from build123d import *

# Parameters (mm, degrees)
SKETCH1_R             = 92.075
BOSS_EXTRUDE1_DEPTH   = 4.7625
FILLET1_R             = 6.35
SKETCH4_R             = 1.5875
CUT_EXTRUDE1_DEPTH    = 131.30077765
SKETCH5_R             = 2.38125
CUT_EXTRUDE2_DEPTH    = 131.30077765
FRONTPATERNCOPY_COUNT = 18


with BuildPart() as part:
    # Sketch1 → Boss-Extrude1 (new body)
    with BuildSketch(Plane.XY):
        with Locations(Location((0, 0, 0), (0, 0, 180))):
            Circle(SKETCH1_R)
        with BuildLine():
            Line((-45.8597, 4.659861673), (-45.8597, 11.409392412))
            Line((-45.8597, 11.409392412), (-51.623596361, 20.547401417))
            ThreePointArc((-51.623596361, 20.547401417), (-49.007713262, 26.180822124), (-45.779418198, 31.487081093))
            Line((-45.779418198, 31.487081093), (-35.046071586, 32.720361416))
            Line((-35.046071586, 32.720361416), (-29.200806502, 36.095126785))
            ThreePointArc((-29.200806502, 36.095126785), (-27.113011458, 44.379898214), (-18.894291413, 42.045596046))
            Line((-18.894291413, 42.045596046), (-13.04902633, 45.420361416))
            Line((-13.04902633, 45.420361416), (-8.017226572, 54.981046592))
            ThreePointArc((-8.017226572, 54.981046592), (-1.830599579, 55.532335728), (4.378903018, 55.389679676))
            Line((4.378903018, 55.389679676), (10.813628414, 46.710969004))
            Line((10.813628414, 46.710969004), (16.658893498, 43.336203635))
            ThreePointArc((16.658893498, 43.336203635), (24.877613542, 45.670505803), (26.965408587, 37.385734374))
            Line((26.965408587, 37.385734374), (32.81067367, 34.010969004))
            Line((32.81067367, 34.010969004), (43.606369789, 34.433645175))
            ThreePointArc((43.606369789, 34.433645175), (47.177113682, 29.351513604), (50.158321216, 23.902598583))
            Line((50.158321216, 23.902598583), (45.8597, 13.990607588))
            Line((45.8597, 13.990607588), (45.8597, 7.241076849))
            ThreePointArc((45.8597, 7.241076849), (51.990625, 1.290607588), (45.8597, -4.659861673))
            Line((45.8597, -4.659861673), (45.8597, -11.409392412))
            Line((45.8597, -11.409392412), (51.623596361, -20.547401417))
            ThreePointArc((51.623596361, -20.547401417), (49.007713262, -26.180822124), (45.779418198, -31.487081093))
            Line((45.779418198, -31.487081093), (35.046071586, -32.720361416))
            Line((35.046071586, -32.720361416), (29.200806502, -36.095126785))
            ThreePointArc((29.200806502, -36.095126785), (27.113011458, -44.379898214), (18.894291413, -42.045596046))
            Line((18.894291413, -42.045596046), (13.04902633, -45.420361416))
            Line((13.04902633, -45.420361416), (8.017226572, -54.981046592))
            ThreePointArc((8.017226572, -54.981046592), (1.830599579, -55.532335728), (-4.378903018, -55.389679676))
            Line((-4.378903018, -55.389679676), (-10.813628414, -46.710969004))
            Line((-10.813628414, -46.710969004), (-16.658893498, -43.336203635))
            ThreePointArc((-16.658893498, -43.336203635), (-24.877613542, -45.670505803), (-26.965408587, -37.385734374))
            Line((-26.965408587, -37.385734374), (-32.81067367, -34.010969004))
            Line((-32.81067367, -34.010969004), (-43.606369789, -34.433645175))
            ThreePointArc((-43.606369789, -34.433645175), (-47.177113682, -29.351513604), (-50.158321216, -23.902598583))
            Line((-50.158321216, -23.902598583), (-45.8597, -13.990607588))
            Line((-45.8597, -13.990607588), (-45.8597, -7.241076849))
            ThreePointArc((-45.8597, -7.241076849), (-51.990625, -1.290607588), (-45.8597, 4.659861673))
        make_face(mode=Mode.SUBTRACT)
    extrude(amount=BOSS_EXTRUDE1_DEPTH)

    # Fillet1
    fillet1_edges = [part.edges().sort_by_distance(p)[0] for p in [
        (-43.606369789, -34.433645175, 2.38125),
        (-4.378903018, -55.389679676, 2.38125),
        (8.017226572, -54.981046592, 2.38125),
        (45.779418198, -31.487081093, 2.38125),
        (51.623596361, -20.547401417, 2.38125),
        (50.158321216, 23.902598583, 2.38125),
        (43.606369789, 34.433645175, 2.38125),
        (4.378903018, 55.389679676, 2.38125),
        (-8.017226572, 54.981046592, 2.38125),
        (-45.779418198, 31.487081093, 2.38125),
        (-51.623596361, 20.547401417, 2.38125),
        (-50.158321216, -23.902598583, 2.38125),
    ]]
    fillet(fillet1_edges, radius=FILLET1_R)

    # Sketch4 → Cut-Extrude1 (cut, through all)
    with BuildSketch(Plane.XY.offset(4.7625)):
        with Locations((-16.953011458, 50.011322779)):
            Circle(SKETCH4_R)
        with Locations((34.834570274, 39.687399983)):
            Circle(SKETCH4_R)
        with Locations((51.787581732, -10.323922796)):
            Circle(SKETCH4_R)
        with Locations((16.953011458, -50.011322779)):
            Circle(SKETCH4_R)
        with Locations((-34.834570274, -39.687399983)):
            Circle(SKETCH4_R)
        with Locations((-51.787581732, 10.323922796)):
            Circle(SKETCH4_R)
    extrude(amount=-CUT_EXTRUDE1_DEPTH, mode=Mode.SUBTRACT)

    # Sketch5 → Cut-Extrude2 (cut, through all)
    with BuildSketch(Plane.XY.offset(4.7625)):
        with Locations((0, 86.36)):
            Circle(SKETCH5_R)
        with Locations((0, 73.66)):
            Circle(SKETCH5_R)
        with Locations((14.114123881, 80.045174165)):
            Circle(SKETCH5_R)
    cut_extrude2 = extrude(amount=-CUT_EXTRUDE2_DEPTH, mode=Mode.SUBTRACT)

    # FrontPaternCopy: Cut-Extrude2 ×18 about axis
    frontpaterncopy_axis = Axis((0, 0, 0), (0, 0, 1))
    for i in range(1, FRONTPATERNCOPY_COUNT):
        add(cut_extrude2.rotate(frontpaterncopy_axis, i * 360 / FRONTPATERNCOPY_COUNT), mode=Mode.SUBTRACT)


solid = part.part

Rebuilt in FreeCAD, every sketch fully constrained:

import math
import FreeCAD as App
import Part
import Sketcher
Q = App.Units.Quantity


def edges_at(feature, points):
    """Names of the edges that pass closest to the given points."""
    edges = feature.Shape.Edges
    near = lambda p: min(range(len(edges)), key=lambda i: edges[i].distToShape(Part.Vertex(*p))[0])
    return sorted({f"Edge{near(p) + 1}" for p in points})

doc = App.newDocument("Part")
body = doc.addObject("PartDesign::Body", "Body")

sketch1 = body.newObject("Sketcher::SketchObject", "Sketch")
sketch1.AttachmentSupport = (doc.getObject("XY_Plane"), [""])
sketch1.MapMode = "FlatFace"
sketch1.addGeometry([
    Part.Circle(App.Vector(0, 0, 0), App.Vector(0, 0, 1), 92),
    Part.ArcOfCircle(Part.Circle(App.Vector(-46, -1, 0), App.Vector(0, 0, 1), 6), math.radians(88), math.radians(272)),
    Part.LineSegment(App.Vector(-46, 5, 0), App.Vector(-46, 11, 0)),
    Part.LineSegment(App.Vector(-46, 11, 0), App.Vector(-52, 21, 0)),
    Part.ArcOfCircle(Part.Circle(App.Vector(0, 0, 0), App.Vector(0, 0, 1), 56), math.radians(145.48), math.radians(158.3)),
    Part.LineSegment(App.Vector(-46, 31, 0), App.Vector(-35, 33, 0)),
    Part.LineSegment(App.Vector(-35, 33, 0), App.Vector(-29, 36, 0)),
    Part.ArcOfCircle(Part.Circle(App.Vector(-24, 39, 0), App.Vector(0, 0, 1), 6), math.radians(28), math.radians(212)),
    Part.LineSegment(App.Vector(-19, 42, 0), App.Vector(-13, 45, 0)),
    Part.LineSegment(App.Vector(-13, 45, 0), App.Vector(-8, 55, 0)),
    Part.ArcOfCircle(Part.Circle(App.Vector(0, 0, 0), App.Vector(0, 0, 1), 56), math.radians(85.48), math.radians(98.3)),
    Part.LineSegment(App.Vector(4, 55, 0), App.Vector(11, 47, 0)),
    Part.LineSegment(App.Vector(11, 47, 0), App.Vector(17, 43, 0)),
    Part.ArcOfCircle(Part.Circle(App.Vector(22, 41, 0), App.Vector(0, 0, 1), 6), math.radians(-32), math.radians(152)),
    Part.LineSegment(App.Vector(27, 37, 0), App.Vector(33, 34, 0)),
    Part.LineSegment(App.Vector(33, 34, 0), App.Vector(44, 34, 0)),
    Part.ArcOfCircle(Part.Circle(App.Vector(0, 0, 0), App.Vector(0, 0, 1), 56), math.radians(25.48), math.radians(38.3)),
    Part.LineSegment(App.Vector(50, 24, 0), App.Vector(46, 14, 0)),
    Part.LineSegment(App.Vector(46, 14, 0), App.Vector(46, 7, 0)),
    Part.ArcOfCircle(Part.Circle(App.Vector(46, 1, 0), App.Vector(0, 0, 1), 6), math.radians(-92), math.radians(92)),
    Part.LineSegment(App.Vector(46, -5, 0), App.Vector(46, -11, 0)),
    Part.LineSegment(App.Vector(46, -11, 0), App.Vector(52, -21, 0)),
    Part.ArcOfCircle(Part.Circle(App.Vector(0, 0, 0), App.Vector(0, 0, 1), 56), math.radians(-34.52), math.radians(-21.7)),
    Part.LineSegment(App.Vector(46, -31, 0), App.Vector(35, -33, 0)),
    Part.LineSegment(App.Vector(35, -33, 0), App.Vector(29, -36, 0)),
    Part.ArcOfCircle(Part.Circle(App.Vector(24, -39, 0), App.Vector(0, 0, 1), 6), math.radians(-152), math.radians(32)),
    Part.LineSegment(App.Vector(19, -42, 0), App.Vector(13, -45, 0)),
    Part.LineSegment(App.Vector(13, -45, 0), App.Vector(8, -55, 0)),
    Part.ArcOfCircle(Part.Circle(App.Vector(0, 0, 0), App.Vector(0, 0, 1), 56), math.radians(-94.52), math.radians(-81.7)),
    Part.LineSegment(App.Vector(-4, -55, 0), App.Vector(-11, -47, 0)),
    Part.LineSegment(App.Vector(-11, -47, 0), App.Vector(-17, -43, 0)),
    Part.ArcOfCircle(Part.Circle(App.Vector(-22, -41, 0), App.Vector(0, 0, 1), 6), math.radians(148), math.radians(332)),
    Part.LineSegment(App.Vector(-27, -37, 0), App.Vector(-33, -34, 0)),
    Part.LineSegment(App.Vector(-33, -34, 0), App.Vector(-44, -34, 0)),
    Part.ArcOfCircle(Part.Circle(App.Vector(0, 0, 0), App.Vector(0, 0, 1), 56), math.radians(-154.52), math.radians(-141.7)),
    Part.LineSegment(App.Vector(-50, -24, 0), App.Vector(-46, -14, 0)),
    Part.LineSegment(App.Vector(-46, -14, 0), App.Vector(-46, -7, 0)),
], False)
sketch1.addConstraint([
    Sketcher.Constraint("Coincident", 1, 1, 2, 1),
    Sketcher.Constraint("Coincident", 2, 2, 3, 1),
    Sketcher.Constraint("Coincident", 3, 2, 4, 2),
    Sketcher.Constraint("Coincident", 4, 1, 5, 1),
    Sketcher.Constraint("Coincident", 5, 2, 6, 1),
    Sketcher.Constraint("Coincident", 6, 2, 7, 2),
    Sketcher.Constraint("Coincident", 7, 1, 8, 1),
    Sketcher.Constraint("Coincident", 8, 2, 9, 1),
    Sketcher.Constraint("Coincident", 9, 2, 10, 2),
    Sketcher.Constraint("Coincident", 10, 1, 11, 1),
    Sketcher.Constraint("Coincident", 11, 2, 12, 1),
    Sketcher.Constraint("Coincident", 12, 2, 13, 2),
    Sketcher.Constraint("Coincident", 13, 1, 14, 1),
    Sketcher.Constraint("Coincident", 14, 2, 15, 1),
    Sketcher.Constraint("Coincident", 15, 2, 16, 2),
    Sketcher.Constraint("Coincident", 16, 1, 17, 1),
    Sketcher.Constraint("Coincident", 17, 2, 18, 1),
    Sketcher.Constraint("Coincident", 18, 2, 19, 2),
    Sketcher.Constraint("Coincident", 19, 1, 20, 1),
    Sketcher.Constraint("Coincident", 20, 2, 21, 1),
    Sketcher.Constraint("Coincident", 21, 2, 22, 2),
    Sketcher.Constraint("Coincident", 22, 1, 23, 1),
    Sketcher.Constraint("Coincident", 23, 2, 24, 1),
    Sketcher.Constraint("Coincident", 24, 2, 25, 2),
    Sketcher.Constraint("Coincident", 25, 1, 26, 1),
    Sketcher.Constraint("Coincident", 26, 2, 27, 1),
    Sketcher.Constraint("Coincident", 27, 2, 28, 2),
    Sketcher.Constraint("Coincident", 28, 1, 29, 1),
    Sketcher.Constraint("Coincident", 29, 2, 30, 1),
    Sketcher.Constraint("Coincident", 30, 2, 31, 2),
    Sketcher.Constraint("Coincident", 31, 1, 32, 1),
    Sketcher.Constraint("Coincident", 32, 2, 33, 1),
    Sketcher.Constraint("Coincident", 33, 2, 34, 2),
    Sketcher.Constraint("Coincident", 34, 1, 35, 1),
    Sketcher.Constraint("Coincident", 35, 2, 36, 1),
    Sketcher.Constraint("Coincident", 36, 2, 1, 2),
    Sketcher.Constraint("Vertical", 2),
    Sketcher.Constraint("Vertical", 18),
    Sketcher.Constraint("Vertical", 20),
    Sketcher.Constraint("Vertical", 36),
    Sketcher.Constraint("Coincident", 0, 3, -1, 1),
    Sketcher.Constraint("Coincident", 4, 3, -1, 1),
    Sketcher.Constraint("Coincident", 10, 3, -1, 1),
    Sketcher.Constraint("Coincident", 16, 3, -1, 1),
    Sketcher.Constraint("Coincident", 22, 3, -1, 1),
    Sketcher.Constraint("Coincident", 28, 3, -1, 1),
    Sketcher.Constraint("Coincident", 34, 3, -1, 1),
    Sketcher.Constraint("Equal", 1, 7),
    Sketcher.Constraint("Equal", 4, 10),
    Sketcher.Constraint("Equal", 7, 13),
    Sketcher.Constraint("Equal", 10, 16),
    Sketcher.Constraint("Equal", 13, 19),
    Sketcher.Constraint("Equal", 16, 22),
    Sketcher.Constraint("Equal", 19, 25),
    Sketcher.Constraint("Equal", 22, 28),
    Sketcher.Constraint("Equal", 25, 31),
    Sketcher.Constraint("Equal", 28, 34),
    Sketcher.Constraint("Symmetric", 1, 3, 19, 3, -1, 1),
    Sketcher.Constraint("Symmetric", 7, 3, 25, 3, -1, 1),
    Sketcher.Constraint("Symmetric", 13, 3, 31, 3, -1, 1),
    Sketcher.Constraint("Symmetric", 2, 2, 20, 2, -1, 1),
    Sketcher.Constraint("Symmetric", 5, 2, 23, 2, -1, 1),
    Sketcher.Constraint("Symmetric", 8, 2, 26, 2, -1, 1),
    Sketcher.Constraint("Symmetric", 11, 2, 29, 2, -1, 1),
    Sketcher.Constraint("Symmetric", 14, 2, 32, 2, -1, 1),
    Sketcher.Constraint("Symmetric", 17, 2, 35, 2, -1, 1),
    Sketcher.Constraint("Parallel", 6, 8),
    Sketcher.Constraint("Parallel", 12, 14),
    Sketcher.Constraint("Parallel", 3, 21),
    Sketcher.Constraint("Parallel", 5, 23),
    Sketcher.Constraint("Parallel", 8, 24),
    Sketcher.Constraint("Parallel", 24, 26),
    Sketcher.Constraint("Parallel", 9, 27),
    Sketcher.Constraint("Parallel", 11, 29),
    Sketcher.Constraint("Parallel", 14, 30),
    Sketcher.Constraint("Parallel", 30, 32),
    Sketcher.Constraint("Parallel", 15, 33),
    Sketcher.Constraint("Parallel", 17, 35),
    Sketcher.Constraint("Vertical", 18, 2, 19, 1),
    Sketcher.Constraint("Equal", 2, 18),
    Sketcher.Constraint("Equal", 3, 5),
    Sketcher.Constraint("Equal", 6, 8),
    Sketcher.Constraint("Equal", 5, 9),
    Sketcher.Constraint("Equal", 9, 11),
    Sketcher.Constraint("Equal", 8, 12),
    Sketcher.Constraint("Equal", 12, 14),
    Sketcher.Constraint("Equal", 11, 15),
    Sketcher.Constraint("Equal", 15, 17),
    Sketcher.Constraint("Diameter", 0, Q("7.25 in")),
    Sketcher.Constraint("Angle", 6, Q("30 deg")),
    Sketcher.Constraint("Angle", 12, Q("-30 deg")),
    Sketcher.Constraint("Radius", 1, Q("0.234375 in")),
    Sketcher.Constraint("Radius", 4, Q("2.1875 in")),
    Sketcher.Constraint("DistanceY", 20, 2, 17, 2, Q("1 in")),
    Sketcher.Constraint("DistanceY", 5, 2, 8, 2, Q("0.5 in")),
    Sketcher.Constraint("DistanceY", 14, 2, 11, 2, Q("0.5 in")),
    Sketcher.Constraint("DistanceX", 1, 3, -1, 1, Q("1.8125 in")),
    Sketcher.Constraint("DistanceX", 7, 3, 13, 3, Q("1.8125 in")),
    Sketcher.Constraint("DistanceX", 1, 3, 1, 1, Q("0.007 in")),
    Sketcher.Constraint("DistanceY", -1, 1, 3, 2, 20.547401),
    Sketcher.Constraint("DistanceY", -1, 1, 16, 1, 23.902599),
    Sketcher.Constraint("DistanceY", 1, 1, 5, 2, 28.0605),
    Sketcher.Constraint("DistanceX", 8, 2, 9, 2, 5.0318),
    Sketcher.Constraint("DistanceY", 13, 3, 9, 2, 14.466098),
    Sketcher.Constraint("Distance", 6, 6.749531),
    Sketcher.Constraint("DistanceX", 7, 3, -1, 1, 24.136449),
    Sketcher.Constraint("DistanceY", -1, 1, 10, 1, 55.38968),
])
pad1 = body.newObject("PartDesign::Pad", "Pad")
pad1.Profile = sketch1
pad1.Length = Q("0.1875 in")
doc.recompute()

fillet = body.newObject("PartDesign::Fillet", "Fillet")
fillet.Base = (pad1, edges_at(pad1, [
    (-43.606, -34.434, 2.381),
    (-4.379, -55.39, 2.381),
    (8.017, -54.981, 2.381),
    (45.779, -31.487, 2.381),
    (51.624, -20.547, 2.381),
    (50.158, 23.903, 2.381),
    (43.606, 34.434, 2.381),
    (4.379, 55.39, 2.381),
    (-8.017, 54.981, 2.381),
    (-45.779, 31.487, 2.381),
    (-51.624, 20.547, 2.381),
    (-50.158, -23.903, 2.381),
]))
fillet.Radius = Q("0.25 in")

sketch2 = body.newObject("Sketcher::SketchObject", "Sketch001")
sketch2.AttachmentSupport = (doc.getObject("XY_Plane"), [""])
sketch2.MapMode = "FlatFace"
sketch2.AttachmentOffset = App.Placement(App.Vector(0, 0, 0.1875 * 25.4), App.Rotation())
sketch2.addGeometry([
    Part.Circle(App.Vector(-17, 50, 0), App.Vector(0, 0, 1), 1.6),
    Part.Circle(App.Vector(34.8, 39.7, 0), App.Vector(0, 0, 1), 1.6),
    Part.Circle(App.Vector(51.8, -10.3, 0), App.Vector(0, 0, 1), 1.6),
    Part.Circle(App.Vector(17, -50, 0), App.Vector(0, 0, 1), 1.6),
    Part.Circle(App.Vector(-34.8, -39.7, 0), App.Vector(0, 0, 1), 1.6),
    Part.Circle(App.Vector(-51.8, 10.3, 0), App.Vector(0, 0, 1), 1.6),
], False)
sketch2.addConstraint([
    Sketcher.Constraint("Equal", 0, 1),
    Sketcher.Constraint("Equal", 1, 2),
    Sketcher.Constraint("Equal", 2, 3),
    Sketcher.Constraint("Equal", 3, 4),
    Sketcher.Constraint("Equal", 4, 5),
    Sketcher.Constraint("Symmetric", 0, 3, 3, 3, -1, 1),
    Sketcher.Constraint("Symmetric", 1, 3, 4, 3, -1, 1),
    Sketcher.Constraint("Symmetric", 2, 3, 5, 3, -1, 1),
    Sketcher.Constraint("Diameter", 0, Q("0.125 in")),
    Sketcher.Constraint("DistanceY", -1, 1, 1, 3, 39.6874),
    Sketcher.Constraint("DistanceY", 3, 3, 2, 3, 39.6874),
    Sketcher.Constraint("DistanceX", 0, 3, -1, 1, 16.953011),
    Sketcher.Constraint("DistanceX", -1, 1, 1, 3, 34.83457),
    Sketcher.Constraint("DistanceX", -1, 1, 2, 3, 51.787582),
    Sketcher.Constraint("DistanceY", -1, 1, 0, 3, 50.011323),
])
pocket1 = body.newObject("PartDesign::Pocket", "Pocket")
pocket1.Profile = sketch2
pocket1.Type = "ThroughAll"

sketch3 = body.newObject("Sketcher::SketchObject", "Sketch002")
sketch3.AttachmentSupport = (doc.getObject("XY_Plane"), [""])
sketch3.MapMode = "FlatFace"
sketch3.AttachmentOffset = App.Placement(App.Vector(0, 0, 0.1875 * 25.4), App.Rotation())
sketch3.addGeometry([
    Part.Circle(App.Vector(0, 86.4, 0), App.Vector(0, 0, 1), 2.4),
    Part.Circle(App.Vector(0, 73.7, 0), App.Vector(0, 0, 1), 2.4),
    Part.Circle(App.Vector(14.1, 80, 0), App.Vector(0, 0, 1), 2.4),
], False)
sketch3.addConstraint([
    Sketcher.Constraint("Equal", 0, 1),
    Sketcher.Constraint("Equal", 1, 2),
    Sketcher.Constraint("PointOnObject", 0, 3, -2),
    Sketcher.Constraint("PointOnObject", 1, 3, -2),
    Sketcher.Constraint("Diameter", 0, Q("0.1875 in")),
    Sketcher.Constraint("DistanceY", -1, 1, 0, 3, Q("3.4 in")),
    Sketcher.Constraint("DistanceY", -1, 1, 1, 3, Q("2.9 in")),
    Sketcher.Constraint("DistanceX", -1, 1, 2, 3, 14.114124),
    Sketcher.Constraint("DistanceY", -1, 1, 2, 3, 80.045174),
])
pocket2 = body.newObject("PartDesign::Pocket", "Pocket001")
pocket2.Profile = sketch3
pocket2.Type = "ThroughAll"
doc.recompute()

polarpattern = body.newObject("PartDesign::PolarPattern", "PolarPattern")
polarpattern.Originals = [pocket2]
polarpattern.Axis = (doc.getObject("Z_Axis"), [""])
polarpattern.Angle = 360
polarpattern.Occurrences = 18
body.Tip = polarpattern

doc.recompute()
